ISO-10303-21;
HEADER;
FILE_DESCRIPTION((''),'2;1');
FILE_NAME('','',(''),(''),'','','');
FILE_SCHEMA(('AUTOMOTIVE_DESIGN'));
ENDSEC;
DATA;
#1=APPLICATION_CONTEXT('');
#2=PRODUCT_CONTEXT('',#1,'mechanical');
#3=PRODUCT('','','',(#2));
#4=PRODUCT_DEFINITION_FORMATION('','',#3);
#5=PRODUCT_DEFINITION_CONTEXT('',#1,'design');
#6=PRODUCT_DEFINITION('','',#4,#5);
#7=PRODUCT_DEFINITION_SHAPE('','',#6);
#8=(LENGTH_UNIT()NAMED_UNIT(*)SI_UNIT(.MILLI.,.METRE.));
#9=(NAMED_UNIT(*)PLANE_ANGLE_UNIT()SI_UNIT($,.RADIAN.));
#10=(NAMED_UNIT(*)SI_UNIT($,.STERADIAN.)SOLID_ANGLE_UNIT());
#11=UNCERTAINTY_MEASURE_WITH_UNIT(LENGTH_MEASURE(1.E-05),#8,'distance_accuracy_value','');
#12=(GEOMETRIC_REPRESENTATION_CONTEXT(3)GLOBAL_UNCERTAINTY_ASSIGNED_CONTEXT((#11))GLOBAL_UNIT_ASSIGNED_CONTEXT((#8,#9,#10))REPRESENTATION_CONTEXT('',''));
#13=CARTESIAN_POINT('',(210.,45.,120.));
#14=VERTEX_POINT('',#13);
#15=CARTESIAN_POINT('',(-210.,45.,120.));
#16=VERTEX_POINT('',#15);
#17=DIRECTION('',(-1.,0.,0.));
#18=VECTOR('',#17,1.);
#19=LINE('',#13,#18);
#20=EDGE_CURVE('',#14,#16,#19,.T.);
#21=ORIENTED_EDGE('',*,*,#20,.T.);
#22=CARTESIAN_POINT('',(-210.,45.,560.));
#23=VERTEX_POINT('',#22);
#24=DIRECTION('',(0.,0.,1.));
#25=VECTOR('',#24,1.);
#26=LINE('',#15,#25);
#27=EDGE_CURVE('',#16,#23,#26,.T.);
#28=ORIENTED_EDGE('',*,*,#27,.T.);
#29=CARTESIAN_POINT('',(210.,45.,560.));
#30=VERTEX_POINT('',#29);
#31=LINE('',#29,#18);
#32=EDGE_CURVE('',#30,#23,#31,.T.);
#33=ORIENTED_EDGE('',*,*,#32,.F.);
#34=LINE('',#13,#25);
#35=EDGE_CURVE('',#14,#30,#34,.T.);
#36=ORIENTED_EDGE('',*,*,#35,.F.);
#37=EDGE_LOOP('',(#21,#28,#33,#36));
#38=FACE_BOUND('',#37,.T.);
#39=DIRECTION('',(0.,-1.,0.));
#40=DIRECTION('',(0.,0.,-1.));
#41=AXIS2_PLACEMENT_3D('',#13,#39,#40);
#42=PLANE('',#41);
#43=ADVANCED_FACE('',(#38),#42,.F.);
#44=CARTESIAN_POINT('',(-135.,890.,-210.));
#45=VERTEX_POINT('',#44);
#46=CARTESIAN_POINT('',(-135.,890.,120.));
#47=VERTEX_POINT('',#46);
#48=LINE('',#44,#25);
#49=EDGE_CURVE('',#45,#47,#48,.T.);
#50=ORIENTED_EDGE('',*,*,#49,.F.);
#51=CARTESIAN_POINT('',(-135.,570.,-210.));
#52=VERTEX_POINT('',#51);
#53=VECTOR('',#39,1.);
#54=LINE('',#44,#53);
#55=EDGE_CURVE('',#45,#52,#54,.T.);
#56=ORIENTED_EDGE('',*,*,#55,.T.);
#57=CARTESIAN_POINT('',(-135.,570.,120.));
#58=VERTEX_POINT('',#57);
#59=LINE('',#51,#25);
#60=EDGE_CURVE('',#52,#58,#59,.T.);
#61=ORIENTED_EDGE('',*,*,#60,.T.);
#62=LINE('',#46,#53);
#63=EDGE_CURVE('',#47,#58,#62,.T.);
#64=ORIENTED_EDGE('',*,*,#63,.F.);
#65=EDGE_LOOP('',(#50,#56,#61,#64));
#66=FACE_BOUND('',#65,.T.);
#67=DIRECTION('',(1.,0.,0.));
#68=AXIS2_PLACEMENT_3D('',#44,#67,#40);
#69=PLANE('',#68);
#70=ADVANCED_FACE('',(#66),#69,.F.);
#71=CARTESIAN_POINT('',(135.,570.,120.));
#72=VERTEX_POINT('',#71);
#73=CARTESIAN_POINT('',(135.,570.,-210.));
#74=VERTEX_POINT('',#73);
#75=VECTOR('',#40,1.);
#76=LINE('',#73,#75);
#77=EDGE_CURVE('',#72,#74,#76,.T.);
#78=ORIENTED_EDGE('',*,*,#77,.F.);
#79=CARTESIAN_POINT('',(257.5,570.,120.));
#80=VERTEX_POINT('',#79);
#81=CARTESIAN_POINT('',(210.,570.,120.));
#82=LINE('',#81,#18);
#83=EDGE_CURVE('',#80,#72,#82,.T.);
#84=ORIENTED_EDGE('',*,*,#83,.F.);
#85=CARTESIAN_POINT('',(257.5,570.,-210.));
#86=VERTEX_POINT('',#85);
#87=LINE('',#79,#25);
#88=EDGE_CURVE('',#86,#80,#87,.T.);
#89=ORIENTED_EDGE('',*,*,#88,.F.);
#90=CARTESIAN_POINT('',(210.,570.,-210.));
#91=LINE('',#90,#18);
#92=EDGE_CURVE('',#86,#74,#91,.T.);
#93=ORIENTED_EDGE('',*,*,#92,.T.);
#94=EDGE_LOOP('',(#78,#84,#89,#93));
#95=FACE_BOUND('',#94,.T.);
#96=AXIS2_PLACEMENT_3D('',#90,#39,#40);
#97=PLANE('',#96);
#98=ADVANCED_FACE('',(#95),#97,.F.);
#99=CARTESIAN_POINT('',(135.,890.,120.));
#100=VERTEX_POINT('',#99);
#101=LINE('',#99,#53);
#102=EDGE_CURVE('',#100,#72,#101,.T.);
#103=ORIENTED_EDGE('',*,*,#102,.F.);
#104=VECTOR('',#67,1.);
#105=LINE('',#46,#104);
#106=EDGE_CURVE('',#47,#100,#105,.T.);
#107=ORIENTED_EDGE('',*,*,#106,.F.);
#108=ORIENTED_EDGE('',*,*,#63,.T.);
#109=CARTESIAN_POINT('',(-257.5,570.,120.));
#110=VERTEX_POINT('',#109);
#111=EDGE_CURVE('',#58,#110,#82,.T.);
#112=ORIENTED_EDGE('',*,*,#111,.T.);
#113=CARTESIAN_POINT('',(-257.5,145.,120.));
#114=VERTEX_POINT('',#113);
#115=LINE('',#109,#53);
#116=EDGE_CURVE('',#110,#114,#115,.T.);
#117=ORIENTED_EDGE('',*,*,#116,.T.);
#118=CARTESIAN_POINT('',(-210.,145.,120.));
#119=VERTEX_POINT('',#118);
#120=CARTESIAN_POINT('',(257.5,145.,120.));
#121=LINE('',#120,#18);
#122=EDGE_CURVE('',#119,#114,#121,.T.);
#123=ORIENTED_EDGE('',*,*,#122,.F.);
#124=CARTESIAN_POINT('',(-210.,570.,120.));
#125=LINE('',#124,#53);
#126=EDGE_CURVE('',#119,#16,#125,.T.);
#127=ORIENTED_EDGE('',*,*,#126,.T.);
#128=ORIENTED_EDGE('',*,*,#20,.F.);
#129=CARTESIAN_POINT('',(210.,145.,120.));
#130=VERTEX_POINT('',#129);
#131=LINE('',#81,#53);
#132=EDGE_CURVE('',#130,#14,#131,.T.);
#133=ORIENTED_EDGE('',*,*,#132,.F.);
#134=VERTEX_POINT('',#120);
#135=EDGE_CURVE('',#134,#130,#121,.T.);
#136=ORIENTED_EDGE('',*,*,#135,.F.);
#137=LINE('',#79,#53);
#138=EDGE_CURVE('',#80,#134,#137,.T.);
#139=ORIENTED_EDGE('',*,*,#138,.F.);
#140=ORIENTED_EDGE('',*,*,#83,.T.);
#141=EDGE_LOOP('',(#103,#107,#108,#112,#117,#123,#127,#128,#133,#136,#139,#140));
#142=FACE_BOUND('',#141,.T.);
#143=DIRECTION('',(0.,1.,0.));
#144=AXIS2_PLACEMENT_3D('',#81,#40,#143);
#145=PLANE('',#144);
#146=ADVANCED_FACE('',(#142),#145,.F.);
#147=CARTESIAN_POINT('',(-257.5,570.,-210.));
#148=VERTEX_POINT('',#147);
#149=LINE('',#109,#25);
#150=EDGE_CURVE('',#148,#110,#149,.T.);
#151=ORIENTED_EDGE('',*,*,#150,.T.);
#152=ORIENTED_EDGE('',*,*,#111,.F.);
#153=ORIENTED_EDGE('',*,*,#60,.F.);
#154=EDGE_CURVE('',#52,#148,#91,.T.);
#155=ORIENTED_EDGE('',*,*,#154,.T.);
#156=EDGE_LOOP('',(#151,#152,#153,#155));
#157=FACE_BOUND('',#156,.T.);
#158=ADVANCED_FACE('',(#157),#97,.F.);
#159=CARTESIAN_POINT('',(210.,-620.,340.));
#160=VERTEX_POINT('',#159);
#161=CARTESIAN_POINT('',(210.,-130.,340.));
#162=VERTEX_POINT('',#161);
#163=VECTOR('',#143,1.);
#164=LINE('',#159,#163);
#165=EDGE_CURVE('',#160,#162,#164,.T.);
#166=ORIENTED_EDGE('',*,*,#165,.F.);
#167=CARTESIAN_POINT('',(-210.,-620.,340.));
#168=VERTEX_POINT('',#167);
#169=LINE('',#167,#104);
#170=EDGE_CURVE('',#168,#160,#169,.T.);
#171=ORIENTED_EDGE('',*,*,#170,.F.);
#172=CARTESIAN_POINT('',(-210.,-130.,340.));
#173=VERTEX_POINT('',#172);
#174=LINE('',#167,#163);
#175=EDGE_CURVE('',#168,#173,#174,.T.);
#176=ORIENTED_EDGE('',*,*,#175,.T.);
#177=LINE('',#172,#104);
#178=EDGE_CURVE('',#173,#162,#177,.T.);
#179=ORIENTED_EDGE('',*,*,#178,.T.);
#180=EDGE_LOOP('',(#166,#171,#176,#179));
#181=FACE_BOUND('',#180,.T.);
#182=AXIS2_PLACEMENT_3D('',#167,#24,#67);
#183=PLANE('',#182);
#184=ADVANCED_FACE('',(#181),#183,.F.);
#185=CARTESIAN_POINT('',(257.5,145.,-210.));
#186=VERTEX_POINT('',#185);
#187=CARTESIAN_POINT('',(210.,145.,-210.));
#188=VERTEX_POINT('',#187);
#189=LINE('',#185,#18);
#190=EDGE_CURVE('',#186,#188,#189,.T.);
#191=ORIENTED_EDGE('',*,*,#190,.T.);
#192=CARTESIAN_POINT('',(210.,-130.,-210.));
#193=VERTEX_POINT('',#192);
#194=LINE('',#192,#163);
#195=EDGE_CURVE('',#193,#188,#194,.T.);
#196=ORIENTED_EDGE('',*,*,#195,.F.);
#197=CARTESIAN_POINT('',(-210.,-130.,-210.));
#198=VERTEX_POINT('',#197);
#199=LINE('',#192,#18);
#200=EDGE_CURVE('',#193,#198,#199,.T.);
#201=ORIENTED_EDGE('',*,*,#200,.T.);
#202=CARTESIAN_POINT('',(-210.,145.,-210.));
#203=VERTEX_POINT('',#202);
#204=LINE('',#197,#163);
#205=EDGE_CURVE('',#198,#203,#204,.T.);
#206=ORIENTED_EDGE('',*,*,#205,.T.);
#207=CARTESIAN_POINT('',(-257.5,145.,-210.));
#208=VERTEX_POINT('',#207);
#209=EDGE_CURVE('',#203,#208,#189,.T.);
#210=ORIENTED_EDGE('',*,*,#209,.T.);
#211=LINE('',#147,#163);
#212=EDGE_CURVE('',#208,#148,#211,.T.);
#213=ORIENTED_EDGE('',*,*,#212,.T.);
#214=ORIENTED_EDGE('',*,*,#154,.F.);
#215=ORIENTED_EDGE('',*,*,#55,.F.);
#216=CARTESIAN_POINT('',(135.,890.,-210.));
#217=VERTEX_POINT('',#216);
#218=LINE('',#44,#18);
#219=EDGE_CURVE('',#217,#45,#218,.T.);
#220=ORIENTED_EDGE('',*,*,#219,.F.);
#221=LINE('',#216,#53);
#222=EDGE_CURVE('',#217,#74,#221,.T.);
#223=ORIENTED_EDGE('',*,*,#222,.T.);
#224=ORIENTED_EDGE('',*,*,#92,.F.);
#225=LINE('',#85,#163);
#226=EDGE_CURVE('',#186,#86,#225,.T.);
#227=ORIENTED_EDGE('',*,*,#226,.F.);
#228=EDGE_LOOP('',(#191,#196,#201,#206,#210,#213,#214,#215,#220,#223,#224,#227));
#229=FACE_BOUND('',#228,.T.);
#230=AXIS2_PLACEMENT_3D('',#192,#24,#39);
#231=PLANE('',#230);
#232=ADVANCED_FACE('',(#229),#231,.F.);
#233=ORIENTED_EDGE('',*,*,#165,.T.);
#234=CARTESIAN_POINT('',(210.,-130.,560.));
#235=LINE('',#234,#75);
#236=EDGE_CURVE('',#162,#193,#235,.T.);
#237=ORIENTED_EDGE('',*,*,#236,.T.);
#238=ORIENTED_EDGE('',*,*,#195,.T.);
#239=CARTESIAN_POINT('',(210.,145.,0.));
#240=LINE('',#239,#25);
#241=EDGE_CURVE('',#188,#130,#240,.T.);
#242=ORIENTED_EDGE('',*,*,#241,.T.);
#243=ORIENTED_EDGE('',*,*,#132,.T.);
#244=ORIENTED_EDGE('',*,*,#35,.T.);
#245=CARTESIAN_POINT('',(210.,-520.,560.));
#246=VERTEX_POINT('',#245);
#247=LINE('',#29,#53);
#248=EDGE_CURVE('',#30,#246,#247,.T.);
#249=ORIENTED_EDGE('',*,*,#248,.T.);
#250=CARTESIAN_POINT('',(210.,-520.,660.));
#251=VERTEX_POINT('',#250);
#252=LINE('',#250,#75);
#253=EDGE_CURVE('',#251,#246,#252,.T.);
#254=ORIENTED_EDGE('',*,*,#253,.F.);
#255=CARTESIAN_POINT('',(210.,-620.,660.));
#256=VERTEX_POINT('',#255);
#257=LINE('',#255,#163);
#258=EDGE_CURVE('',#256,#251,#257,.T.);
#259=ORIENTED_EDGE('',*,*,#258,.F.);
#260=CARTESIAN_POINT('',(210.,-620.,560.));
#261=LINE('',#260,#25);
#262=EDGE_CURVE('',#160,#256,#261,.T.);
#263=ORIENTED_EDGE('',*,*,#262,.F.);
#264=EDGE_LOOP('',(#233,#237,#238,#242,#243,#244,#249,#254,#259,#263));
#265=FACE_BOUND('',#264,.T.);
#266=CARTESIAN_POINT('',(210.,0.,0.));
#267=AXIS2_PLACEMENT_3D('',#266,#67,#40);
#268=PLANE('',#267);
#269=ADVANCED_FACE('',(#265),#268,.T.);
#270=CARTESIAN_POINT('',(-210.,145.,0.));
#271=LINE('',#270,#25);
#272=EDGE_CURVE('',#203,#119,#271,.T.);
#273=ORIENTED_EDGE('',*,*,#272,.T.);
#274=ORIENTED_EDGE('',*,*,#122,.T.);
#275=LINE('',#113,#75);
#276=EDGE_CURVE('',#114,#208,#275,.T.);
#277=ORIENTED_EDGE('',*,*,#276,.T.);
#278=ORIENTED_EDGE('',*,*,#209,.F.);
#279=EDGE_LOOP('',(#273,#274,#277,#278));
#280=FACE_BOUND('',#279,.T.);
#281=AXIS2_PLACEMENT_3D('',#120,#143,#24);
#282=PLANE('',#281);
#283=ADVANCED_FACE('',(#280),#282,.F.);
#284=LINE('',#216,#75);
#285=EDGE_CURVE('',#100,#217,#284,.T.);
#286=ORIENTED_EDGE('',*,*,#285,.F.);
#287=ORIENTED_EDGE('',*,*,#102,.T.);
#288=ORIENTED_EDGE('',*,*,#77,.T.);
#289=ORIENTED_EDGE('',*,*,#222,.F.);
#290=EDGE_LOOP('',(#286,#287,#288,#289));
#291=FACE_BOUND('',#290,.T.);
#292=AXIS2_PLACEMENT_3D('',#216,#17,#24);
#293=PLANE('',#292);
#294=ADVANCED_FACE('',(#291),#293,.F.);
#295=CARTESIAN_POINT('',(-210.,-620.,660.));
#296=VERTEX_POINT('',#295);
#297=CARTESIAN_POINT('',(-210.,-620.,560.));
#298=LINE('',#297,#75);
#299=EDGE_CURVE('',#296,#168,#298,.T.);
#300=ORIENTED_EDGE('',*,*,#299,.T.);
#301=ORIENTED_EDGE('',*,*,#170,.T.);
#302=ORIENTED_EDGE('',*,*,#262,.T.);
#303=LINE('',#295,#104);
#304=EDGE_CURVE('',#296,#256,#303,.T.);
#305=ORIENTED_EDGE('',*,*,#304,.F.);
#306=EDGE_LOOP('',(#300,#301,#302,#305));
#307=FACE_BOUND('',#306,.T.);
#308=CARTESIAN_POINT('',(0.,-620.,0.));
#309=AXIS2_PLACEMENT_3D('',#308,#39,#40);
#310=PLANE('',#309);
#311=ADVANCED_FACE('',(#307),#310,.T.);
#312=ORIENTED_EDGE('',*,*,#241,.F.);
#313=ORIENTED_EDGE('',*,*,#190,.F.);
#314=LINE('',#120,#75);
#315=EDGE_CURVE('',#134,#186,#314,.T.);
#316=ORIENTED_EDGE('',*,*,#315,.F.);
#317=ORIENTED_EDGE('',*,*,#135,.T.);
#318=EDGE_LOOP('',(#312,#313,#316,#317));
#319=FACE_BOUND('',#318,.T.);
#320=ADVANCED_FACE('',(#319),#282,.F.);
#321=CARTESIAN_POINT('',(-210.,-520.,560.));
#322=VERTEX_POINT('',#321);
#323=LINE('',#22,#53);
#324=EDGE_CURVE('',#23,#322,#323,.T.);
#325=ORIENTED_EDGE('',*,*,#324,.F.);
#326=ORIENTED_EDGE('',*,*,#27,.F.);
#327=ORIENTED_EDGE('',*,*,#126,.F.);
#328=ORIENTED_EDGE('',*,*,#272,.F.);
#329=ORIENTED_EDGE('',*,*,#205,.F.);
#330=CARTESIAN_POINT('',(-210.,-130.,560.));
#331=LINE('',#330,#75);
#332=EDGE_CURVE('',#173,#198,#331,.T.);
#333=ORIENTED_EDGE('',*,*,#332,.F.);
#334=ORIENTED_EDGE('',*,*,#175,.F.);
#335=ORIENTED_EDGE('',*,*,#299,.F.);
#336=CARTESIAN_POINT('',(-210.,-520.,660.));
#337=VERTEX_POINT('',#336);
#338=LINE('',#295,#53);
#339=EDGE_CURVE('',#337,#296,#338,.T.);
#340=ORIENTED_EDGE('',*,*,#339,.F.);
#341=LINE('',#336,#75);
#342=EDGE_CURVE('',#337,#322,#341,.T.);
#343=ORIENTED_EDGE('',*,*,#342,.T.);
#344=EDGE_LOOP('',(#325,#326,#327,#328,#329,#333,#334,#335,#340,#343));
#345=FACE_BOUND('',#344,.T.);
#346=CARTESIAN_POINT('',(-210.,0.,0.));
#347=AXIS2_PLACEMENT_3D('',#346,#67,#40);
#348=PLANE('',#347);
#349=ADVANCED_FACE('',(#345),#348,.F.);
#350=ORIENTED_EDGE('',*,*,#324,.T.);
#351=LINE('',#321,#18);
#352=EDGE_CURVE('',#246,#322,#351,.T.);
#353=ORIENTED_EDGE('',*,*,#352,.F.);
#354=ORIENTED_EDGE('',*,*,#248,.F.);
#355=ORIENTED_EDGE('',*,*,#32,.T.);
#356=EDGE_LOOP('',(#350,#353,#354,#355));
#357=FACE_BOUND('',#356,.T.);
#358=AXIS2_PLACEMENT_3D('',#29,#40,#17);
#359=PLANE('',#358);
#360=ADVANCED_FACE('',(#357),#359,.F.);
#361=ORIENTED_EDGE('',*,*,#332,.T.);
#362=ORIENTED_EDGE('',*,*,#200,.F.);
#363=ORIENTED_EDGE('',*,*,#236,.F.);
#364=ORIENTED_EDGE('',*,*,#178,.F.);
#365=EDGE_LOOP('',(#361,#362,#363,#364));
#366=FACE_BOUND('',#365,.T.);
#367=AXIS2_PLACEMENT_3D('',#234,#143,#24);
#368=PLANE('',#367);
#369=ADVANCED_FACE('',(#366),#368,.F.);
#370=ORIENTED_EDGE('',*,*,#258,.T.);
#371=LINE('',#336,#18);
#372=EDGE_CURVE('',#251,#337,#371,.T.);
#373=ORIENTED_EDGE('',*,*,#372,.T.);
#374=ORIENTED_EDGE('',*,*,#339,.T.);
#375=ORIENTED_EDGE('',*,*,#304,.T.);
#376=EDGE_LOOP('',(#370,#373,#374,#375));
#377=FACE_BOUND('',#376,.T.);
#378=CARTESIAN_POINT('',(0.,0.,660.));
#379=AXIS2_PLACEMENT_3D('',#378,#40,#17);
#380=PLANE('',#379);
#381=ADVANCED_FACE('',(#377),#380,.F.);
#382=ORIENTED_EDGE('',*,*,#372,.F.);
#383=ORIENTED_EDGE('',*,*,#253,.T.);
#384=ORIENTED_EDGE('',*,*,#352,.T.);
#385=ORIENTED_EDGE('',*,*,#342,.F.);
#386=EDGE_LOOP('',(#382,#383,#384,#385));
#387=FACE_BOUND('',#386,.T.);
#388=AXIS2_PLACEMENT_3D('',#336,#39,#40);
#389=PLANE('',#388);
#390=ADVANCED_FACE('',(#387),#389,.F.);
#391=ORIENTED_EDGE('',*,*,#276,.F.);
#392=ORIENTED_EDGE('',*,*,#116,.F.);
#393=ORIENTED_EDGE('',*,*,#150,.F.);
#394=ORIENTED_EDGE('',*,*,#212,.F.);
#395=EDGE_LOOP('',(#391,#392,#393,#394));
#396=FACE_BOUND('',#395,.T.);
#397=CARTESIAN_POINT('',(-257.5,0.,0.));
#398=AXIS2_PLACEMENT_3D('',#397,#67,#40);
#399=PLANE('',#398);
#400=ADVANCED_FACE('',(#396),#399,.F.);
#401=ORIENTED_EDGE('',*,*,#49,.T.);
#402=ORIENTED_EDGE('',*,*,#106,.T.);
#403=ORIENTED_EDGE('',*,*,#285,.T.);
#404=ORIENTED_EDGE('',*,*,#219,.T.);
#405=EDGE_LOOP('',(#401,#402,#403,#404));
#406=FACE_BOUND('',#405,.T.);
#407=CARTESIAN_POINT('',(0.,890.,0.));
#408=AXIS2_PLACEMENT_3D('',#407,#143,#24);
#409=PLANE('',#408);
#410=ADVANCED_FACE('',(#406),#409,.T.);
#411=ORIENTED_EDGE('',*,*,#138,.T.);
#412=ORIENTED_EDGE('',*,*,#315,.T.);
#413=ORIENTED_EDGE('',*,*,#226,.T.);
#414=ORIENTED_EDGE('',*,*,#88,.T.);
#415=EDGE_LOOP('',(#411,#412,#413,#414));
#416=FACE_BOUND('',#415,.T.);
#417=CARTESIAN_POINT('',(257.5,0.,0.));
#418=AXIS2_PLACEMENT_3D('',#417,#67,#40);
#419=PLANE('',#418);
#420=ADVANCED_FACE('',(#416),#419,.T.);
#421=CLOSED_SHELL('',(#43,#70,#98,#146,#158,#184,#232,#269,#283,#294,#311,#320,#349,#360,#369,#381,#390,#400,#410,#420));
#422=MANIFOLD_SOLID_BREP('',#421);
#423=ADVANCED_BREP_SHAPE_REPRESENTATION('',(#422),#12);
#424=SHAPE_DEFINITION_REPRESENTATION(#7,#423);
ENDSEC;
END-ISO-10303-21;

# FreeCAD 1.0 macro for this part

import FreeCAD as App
import Part
import Sketcher
from FreeCAD import Vector
Q = App.Units.Quantity

doc = App.newDocument("Part")
body = doc.addObject("PartDesign::Body", "Body")

# Sketch on YZ plane
sketch1 = doc.addObject("Sketcher::SketchObject", "Sketch")
body.addObject(sketch1)
sketch1.AttachmentSupport = (doc.YZ_Plane, [""])
sketch1.MapMode = "FlatFace"
sketch1.addGeometry([
    Part.LineSegment(Vector(-130, 560, 0), Vector(-130, -210, 0)),  # 0
    Part.LineSegment(Vector(-130, -210, 0), Vector(570, -210, 0)),  # 1
    Part.LineSegment(Vector(570, -210, 0), Vector(570, 120, 0)),  # 2
    Part.LineSegment(Vector(570, 120, 0), Vector(45, 120, 0)),  # 3
    Part.LineSegment(Vector(45, 120, 0), Vector(45, 560, 0)),  # 4
    Part.LineSegment(Vector(45, 560, 0), Vector(-130, 560, 0)),  # 5
], False)
sketch1.addConstraint([
    Sketcher.Constraint("Coincident", 0, 2, 1, 1),
    Sketcher.Constraint("Coincident", 1, 2, 2, 1),
    Sketcher.Constraint("Coincident", 2, 2, 3, 1),
    Sketcher.Constraint("Coincident", 3, 2, 4, 1),
    Sketcher.Constraint("Coincident", 4, 2, 5, 1),
    Sketcher.Constraint("Coincident", 5, 2, 0, 1),
    Sketcher.Constraint("Vertical", 0),
    Sketcher.Constraint("Horizontal", 1),
    Sketcher.Constraint("Vertical", 2),
    Sketcher.Constraint("Horizontal", 3),
    Sketcher.Constraint("Vertical", 4),
    Sketcher.Constraint("Horizontal", 5),
    Sketcher.Constraint("DistanceX", 1, 1, 1, 2, Q("700 mm")),
    Sketcher.Constraint("DistanceX", 3, 2, 3, 1, Q("525 mm")),
    Sketcher.Constraint("DistanceY", 0, 2, 0, 1, Q("770 mm")),
    Sketcher.Constraint("DistanceY", 2, 1, 2, 2, Q("330 mm")),
    Sketcher.Constraint("DistanceX", 0, 2, -1, 1, Q("130 mm")),
    Sketcher.Constraint("DistanceY", 0, 2, -1, 1, Q("210 mm")),
])
pad1 = doc.addObject("PartDesign::Pad", "Pad")
body.addObject(pad1)
pad1.Profile = sketch1
pad1.Length = 420
pad1.Midplane = True

# Sketch on XZ plane
sketch2 = doc.addObject("Sketcher::SketchObject", "Sketch001")
body.addObject(sketch2)
sketch2.AttachmentSupport = (doc.XZ_Plane, [""])
sketch2.MapMode = "FlatFace"
sketch2.AttachmentOffset = App.Placement(Vector(0, 0, -570), App.Rotation())
sketch2.addGeometry([
    Part.LineSegment(Vector(-135, -210, 0), Vector(-135, 120, 0)),
    Part.LineSegment(Vector(-135, 120, 0), Vector(135, 120, 0)),
    Part.LineSegment(Vector(135, 120, 0), Vector(135, -210, 0)),
    Part.LineSegment(Vector(135, -210, 0), Vector(-135, -210, 0)),
], False)
sketch2.addConstraint([
    Sketcher.Constraint("Coincident", 0, 2, 1, 1),
    Sketcher.Constraint("Coincident", 1, 2, 2, 1),
    Sketcher.Constraint("Coincident", 2, 2, 3, 1),
    Sketcher.Constraint("Coincident", 3, 2, 0, 1),
    Sketcher.Constraint("Vertical", 0),
    Sketcher.Constraint("Horizontal", 1),
    Sketcher.Constraint("Vertical", 2),
    Sketcher.Constraint("Horizontal", 3),
    Sketcher.Constraint("DistanceX", 1, 1, 1, 2, Q("270 mm")),
    Sketcher.Constraint("DistanceY", 0, 1, 0, 2, Q("330 mm")),
    Sketcher.Constraint("DistanceX", 0, 2, -1, 1, Q("135 mm")),
    Sketcher.Constraint("DistanceY", -1, 1, 0, 2, Q("120 mm")),
])
pad2 = doc.addObject("PartDesign::Pad", "Pad001")
body.addObject(pad2)
pad2.Profile = sketch2
pad2.Length = 320
pad2.Reversed = True

# Sketch on YZ plane
sketch3 = doc.addObject("Sketcher::SketchObject", "Sketch002")
body.addObject(sketch3)
sketch3.AttachmentSupport = (doc.YZ_Plane, [""])
sketch3.MapMode = "FlatFace"
sketch3.addGeometry([
    Part.LineSegment(Vector(570, 120, 0), Vector(145, 120, 0)),
    Part.LineSegment(Vector(145, 120, 0), Vector(145, -210, 0)),
    Part.LineSegment(Vector(145, -210, 0), Vector(570, -210, 0)),
    Part.LineSegment(Vector(570, -210, 0), Vector(570, 120, 0)),
], False)
sketch3.addConstraint([
    Sketcher.Constraint("Coincident", 0, 2, 1, 1),
    Sketcher.Constraint("Coincident", 1, 2, 2, 1),
    Sketcher.Constraint("Coincident", 2, 2, 3, 1),
    Sketcher.Constraint("Coincident", 3, 2, 0, 1),
    Sketcher.Constraint("Horizontal", 0),
    Sketcher.Constraint("Vertical", 1),
    Sketcher.Constraint("Horizontal", 2),
    Sketcher.Constraint("Vertical", 3),
    Sketcher.Constraint("DistanceX", 0, 2, 0, 1, Q("425 mm")),
    Sketcher.Constraint("DistanceY", 1, 2, 1, 1, Q("330 mm")),
    Sketcher.Constraint("DistanceX", -1, 1, 0, 2, Q("145 mm")),
    Sketcher.Constraint("DistanceY", -1, 1, 0, 2, Q("120 mm")),
])
pad3 = doc.addObject("PartDesign::Pad", "Pad002")
body.addObject(pad3)
pad3.Profile = sketch3
pad3.Length = 515
pad3.Midplane = True

# Sketch on XZ plane
sketch4 = doc.addObject("Sketcher::SketchObject", "Sketch003")
body.addObject(sketch4)
sketch4.AttachmentSupport = (doc.XZ_Plane, [""])
sketch4.MapMode = "FlatFace"
sketch4.AttachmentOffset = App.Placement(Vector(0, 0, 130), App.Rotation())
sketch4.addGeometry([
    Part.LineSegment(Vector(-210, 560, 0), Vector(-210, 340, 0)),
    Part.LineSegment(Vector(-210, 340, 0), Vector(210, 340, 0)),
    Part.LineSegment(Vector(210, 340, 0), Vector(210, 560, 0)),
    Part.LineSegment(Vector(210, 560, 0), Vector(-210, 560, 0)),
], False)
sketch4.addConstraint([
    Sketcher.Constraint("Coincident", 0, 2, 1, 1),
    Sketcher.Constraint("Coincident", 1, 2, 2, 1),
    Sketcher.Constraint("Coincident", 2, 2, 3, 1),
    Sketcher.Constraint("Coincident", 3, 2, 0, 1),
    Sketcher.Constraint("Vertical", 0),
    Sketcher.Constraint("Horizontal", 1),
    Sketcher.Constraint("Vertical", 2),
    Sketcher.Constraint("Horizontal", 3),
    Sketcher.Constraint("DistanceX", 1, 1, 1, 2, Q("420 mm")),
    Sketcher.Constraint("DistanceY", 0, 2, 0, 1, Q("220 mm")),
    Sketcher.Constraint("DistanceX", 0, 2, -1, 1, Q("210 mm")),
    Sketcher.Constraint("DistanceY", -1, 1, 0, 2, Q("340 mm")),
])
pad4 = doc.addObject("PartDesign::Pad", "Pad003")
body.addObject(pad4)
pad4.Profile = sketch4
pad4.Length = 490

# Sketch on XY plane
sketch5 = doc.addObject("Sketcher::SketchObject", "Sketch004")
body.addObject(sketch5)
sketch5.AttachmentSupport = (doc.XY_Plane, [""])
sketch5.MapMode = "FlatFace"
sketch5.AttachmentOffset = App.Placement(Vector(0, 0, 560), App.Rotation())
sketch5.addGeometry([
    Part.LineSegment(Vector(-210, -520, 0), Vector(-210, -620, 0)),
    Part.LineSegment(Vector(-210, -620, 0), Vector(210, -620, 0)),
    Part.LineSegment(Vector(210, -620, 0), Vector(210, -520, 0)),
    Part.LineSegment(Vector(210, -520, 0), Vector(-210, -520, 0)),
], False)
sketch5.addConstraint([
    Sketcher.Constraint("Coincident", 0, 2, 1, 1),
    Sketcher.Constraint("Coincident", 1, 2, 2, 1),
    Sketcher.Constraint("Coincident", 2, 2, 3, 1),
    Sketcher.Constraint("Coincident", 3, 2, 0, 1),
    Sketcher.Constraint("Vertical", 0),
    Sketcher.Constraint("Horizontal", 1),
    Sketcher.Constraint("Vertical", 2),
    Sketcher.Constraint("Horizontal", 3),
    Sketcher.Constraint("DistanceX", 1, 1, 1, 2, Q("420 mm")),
    Sketcher.Constraint("DistanceY", 0, 2, 0, 1, Q("100 mm")),
    Sketcher.Constraint("DistanceX", 0, 2, -1, 1, Q("210 mm")),
    Sketcher.Constraint("DistanceY", 0, 2, -1, 1, Q("620 mm")),
])
pad5 = doc.addObject("PartDesign::Pad", "Pad004")
body.addObject(pad5)
pad5.Profile = sketch5
pad5.Length = 100

doc.recompute()
